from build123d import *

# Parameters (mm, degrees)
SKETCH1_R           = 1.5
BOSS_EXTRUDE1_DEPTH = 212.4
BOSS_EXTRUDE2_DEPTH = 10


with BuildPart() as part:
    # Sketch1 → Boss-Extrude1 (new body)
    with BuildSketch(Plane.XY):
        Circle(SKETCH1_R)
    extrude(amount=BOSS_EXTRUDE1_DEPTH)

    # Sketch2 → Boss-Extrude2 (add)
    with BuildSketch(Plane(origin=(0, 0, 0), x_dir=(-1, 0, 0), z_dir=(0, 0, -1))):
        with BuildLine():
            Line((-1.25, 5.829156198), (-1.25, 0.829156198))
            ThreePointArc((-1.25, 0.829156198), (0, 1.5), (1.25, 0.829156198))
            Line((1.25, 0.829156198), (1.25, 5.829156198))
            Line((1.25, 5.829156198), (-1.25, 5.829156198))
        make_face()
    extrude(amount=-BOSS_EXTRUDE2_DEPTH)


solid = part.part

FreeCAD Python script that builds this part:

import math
import FreeCAD as App
import Part
import Sketcher
from FreeCAD import Vector
Q = App.Units.Quantity

doc = App.newDocument("Part")
body = doc.addObject("PartDesign::Body", "Body")

# Sketch on XY plane
sketch1 = doc.addObject("Sketcher::SketchObject", "Sketch")
body.addObject(sketch1)
sketch1.AttachmentSupport = (doc.XY_Plane, [""])
sketch1.MapMode = "FlatFace"
sketch1.addGeometry(Part.Circle(Vector(0, 0, 0), Vector(0, 0, 1), 1.5), False)
sketch1.addConstraint([
    Sketcher.Constraint("Coincident", 0, 3, -1, 1),
    Sketcher.Constraint("Diameter", 0, Q("3 mm")),
])
pad1 = doc.addObject("PartDesign::Pad", "Pad")
body.addObject(pad1)
pad1.Profile = sketch1
pad1.Length = 212.4

# Sketch on XY plane
sketch2 = doc.addObject("Sketcher::SketchObject", "Sketch001")
body.addObject(sketch2)
sketch2.AttachmentSupport = (doc.XY_Plane, [""])
sketch2.MapMode = "FlatFace"
sketch2.addGeometry([
    Part.LineSegment(Vector(1.2, 5.8, 0), Vector(1.2, 0.8, 0)),
    Part.ArcOfCircle(Part.Circle(Vector(0, 0, 0), Vector(0, 0, 1), 1.5), math.radians(34), math.radians(146)),
    Part.LineSegment(Vector(-1.2, 0.8, 0), Vector(-1.2, 5.8, 0)),
    Part.LineSegment(Vector(-1.2, 5.8, 0), Vector(1.2, 5.8, 0)),
], False)
sketch2.addConstraint([
    Sketcher.Constraint("Coincident", 0, 2, 1, 1),
    Sketcher.Constraint("Coincident", 1, 2, 2, 1),
    Sketcher.Constraint("Coincident", 2, 2, 3, 1),
    Sketcher.Constraint("Coincident", 3, 2, 0, 1),
    Sketcher.Constraint("Vertical", 0),
    Sketcher.Constraint("Vertical", 2),
    Sketcher.Constraint("Horizontal", 3),
    Sketcher.Constraint("Coincident", 1, 3, -1, 1),
    Sketcher.Constraint("Horizontal", 0, 2, 1, 2),
    Sketcher.Constraint("Radius", 1, Q("1.5 mm")),
    Sketcher.Constraint("DistanceY", 0, 2, 0, 1, Q("5 mm")),
    Sketcher.Constraint("DistanceX", 3, 1, 3, 2, Q("2.5 mm")),
])
pad2 = doc.addObject("PartDesign::Pad", "Pad001")
body.addObject(pad2)
pad2.Profile = sketch2
pad2.Length = 10

doc.recompute()
